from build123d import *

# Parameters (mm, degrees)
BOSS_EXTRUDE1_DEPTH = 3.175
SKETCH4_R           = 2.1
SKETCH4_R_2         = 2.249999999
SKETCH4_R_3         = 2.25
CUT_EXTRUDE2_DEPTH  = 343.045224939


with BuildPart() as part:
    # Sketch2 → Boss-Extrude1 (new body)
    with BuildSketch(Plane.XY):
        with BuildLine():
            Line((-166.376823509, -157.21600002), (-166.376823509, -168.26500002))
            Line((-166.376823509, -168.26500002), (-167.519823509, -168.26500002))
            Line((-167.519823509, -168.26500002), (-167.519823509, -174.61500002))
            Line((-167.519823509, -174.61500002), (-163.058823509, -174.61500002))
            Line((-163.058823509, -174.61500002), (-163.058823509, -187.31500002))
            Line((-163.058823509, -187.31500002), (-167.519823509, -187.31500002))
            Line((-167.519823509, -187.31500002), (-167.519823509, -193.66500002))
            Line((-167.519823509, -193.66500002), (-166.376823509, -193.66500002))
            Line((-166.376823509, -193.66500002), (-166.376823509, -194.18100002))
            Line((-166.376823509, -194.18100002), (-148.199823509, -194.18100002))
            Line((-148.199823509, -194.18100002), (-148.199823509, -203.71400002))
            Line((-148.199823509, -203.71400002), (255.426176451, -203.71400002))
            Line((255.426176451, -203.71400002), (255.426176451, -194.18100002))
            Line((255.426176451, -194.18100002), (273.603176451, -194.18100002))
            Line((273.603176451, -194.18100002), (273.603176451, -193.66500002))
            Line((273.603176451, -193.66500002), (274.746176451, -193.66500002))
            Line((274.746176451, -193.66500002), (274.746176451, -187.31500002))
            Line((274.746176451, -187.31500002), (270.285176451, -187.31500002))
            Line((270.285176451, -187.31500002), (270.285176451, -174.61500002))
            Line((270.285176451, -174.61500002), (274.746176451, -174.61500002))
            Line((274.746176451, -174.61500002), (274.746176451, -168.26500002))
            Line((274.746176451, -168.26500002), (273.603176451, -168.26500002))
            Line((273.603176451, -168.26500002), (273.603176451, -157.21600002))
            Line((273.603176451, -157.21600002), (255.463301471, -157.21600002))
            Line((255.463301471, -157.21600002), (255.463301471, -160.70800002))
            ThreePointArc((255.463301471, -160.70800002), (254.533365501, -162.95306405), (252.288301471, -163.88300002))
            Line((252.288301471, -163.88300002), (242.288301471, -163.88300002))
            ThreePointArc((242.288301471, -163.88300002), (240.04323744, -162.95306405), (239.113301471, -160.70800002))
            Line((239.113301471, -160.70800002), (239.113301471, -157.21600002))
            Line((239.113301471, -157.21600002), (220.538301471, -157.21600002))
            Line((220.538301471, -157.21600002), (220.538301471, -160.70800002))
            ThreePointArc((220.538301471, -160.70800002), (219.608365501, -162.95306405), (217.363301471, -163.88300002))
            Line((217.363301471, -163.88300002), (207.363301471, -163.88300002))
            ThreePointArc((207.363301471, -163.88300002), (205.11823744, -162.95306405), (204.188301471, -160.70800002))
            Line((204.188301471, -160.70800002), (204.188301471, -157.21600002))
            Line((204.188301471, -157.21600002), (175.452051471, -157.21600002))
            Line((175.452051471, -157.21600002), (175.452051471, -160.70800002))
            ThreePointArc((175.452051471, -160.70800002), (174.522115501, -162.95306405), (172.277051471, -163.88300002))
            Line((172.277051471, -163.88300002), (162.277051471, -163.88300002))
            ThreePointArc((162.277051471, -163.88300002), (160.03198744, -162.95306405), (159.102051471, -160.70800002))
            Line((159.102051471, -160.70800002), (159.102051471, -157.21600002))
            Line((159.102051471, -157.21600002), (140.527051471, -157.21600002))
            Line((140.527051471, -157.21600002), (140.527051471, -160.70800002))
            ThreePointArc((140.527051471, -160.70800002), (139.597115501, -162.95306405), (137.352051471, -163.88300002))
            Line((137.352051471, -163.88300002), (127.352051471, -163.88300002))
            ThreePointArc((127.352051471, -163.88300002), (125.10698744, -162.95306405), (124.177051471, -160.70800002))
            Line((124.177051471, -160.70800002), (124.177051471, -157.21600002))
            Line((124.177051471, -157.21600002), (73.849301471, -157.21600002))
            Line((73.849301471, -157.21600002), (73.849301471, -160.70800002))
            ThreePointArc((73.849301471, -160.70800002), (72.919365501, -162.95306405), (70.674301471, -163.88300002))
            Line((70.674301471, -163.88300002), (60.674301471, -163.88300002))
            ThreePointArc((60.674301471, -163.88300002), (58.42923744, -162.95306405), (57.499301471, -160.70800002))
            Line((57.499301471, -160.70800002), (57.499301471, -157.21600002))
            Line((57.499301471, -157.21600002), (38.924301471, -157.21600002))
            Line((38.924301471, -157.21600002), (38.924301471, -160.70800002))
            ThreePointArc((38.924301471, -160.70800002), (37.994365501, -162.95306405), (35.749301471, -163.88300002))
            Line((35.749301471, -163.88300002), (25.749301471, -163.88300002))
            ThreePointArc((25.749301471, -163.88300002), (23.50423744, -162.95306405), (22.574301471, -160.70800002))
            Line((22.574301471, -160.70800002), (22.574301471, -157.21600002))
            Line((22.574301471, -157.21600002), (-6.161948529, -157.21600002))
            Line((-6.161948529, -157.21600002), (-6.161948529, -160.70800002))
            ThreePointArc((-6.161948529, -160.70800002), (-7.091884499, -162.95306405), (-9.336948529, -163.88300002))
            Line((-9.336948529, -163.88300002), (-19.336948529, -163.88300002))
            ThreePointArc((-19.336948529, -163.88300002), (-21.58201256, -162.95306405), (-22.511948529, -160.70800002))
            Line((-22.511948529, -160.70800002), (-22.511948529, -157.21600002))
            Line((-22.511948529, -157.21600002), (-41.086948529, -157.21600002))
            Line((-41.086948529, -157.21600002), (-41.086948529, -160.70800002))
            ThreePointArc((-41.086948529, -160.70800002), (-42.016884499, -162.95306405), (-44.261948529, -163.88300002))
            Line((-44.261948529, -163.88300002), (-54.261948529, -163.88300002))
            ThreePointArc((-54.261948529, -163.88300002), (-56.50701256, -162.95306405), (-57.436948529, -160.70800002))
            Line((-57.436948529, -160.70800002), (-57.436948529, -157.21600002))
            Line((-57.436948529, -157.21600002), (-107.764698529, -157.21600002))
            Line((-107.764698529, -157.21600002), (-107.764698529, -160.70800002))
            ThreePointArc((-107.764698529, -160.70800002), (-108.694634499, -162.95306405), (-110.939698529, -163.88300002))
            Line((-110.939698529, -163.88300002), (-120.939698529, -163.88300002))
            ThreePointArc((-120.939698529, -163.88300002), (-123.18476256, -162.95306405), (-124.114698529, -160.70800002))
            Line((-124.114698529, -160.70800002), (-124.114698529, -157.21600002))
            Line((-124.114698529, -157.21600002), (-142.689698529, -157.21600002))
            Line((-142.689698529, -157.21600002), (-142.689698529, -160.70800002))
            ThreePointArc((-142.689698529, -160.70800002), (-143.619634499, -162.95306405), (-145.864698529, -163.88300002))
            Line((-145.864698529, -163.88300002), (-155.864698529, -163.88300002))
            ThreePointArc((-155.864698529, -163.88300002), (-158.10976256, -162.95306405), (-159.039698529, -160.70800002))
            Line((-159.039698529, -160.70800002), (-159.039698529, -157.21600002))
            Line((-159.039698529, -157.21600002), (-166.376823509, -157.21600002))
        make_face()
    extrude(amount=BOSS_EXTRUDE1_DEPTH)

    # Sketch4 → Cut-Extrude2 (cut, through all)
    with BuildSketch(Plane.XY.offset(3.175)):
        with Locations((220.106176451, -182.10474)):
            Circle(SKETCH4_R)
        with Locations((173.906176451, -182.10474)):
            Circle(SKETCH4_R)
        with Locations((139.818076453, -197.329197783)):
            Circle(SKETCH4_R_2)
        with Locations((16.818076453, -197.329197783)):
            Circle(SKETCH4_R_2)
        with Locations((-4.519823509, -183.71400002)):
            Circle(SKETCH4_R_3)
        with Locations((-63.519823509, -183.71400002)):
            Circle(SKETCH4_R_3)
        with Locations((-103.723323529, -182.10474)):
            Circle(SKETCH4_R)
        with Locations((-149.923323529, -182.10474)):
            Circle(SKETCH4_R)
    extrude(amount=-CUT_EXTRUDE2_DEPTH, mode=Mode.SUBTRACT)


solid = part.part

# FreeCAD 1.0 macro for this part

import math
import FreeCAD as App
import Part
import Sketcher
Q = App.Units.Quantity

doc = App.newDocument("Part")
params = doc.addObject("Spreadsheet::Sheet", "Params")
for row, (alias, value) in enumerate([
    ("sketch1_height", "0.5 in"),
    ("sketch1_radius", "0.125 in"),
    ("sketch1_height2", "0.25 in"),
    ("sketch1_width", "0.045 in"),
    ("sketch1_height3", "0.435 in"),
    ("pad1_length", "0.125 in"),
], start=1):
    params.set(f"A{row}", alias)
    params.set(f"B{row}", "=" + value)
    params.setAlias(f"B{row}", alias)

body = doc.addObject("PartDesign::Body", "Body")

# Sketch on XY plane
sketch1 = body.newObject("Sketcher::SketchObject", "Sketch")
sketch1.AttachmentSupport = (doc.getObject("XY_Plane"), [""])
sketch1.MapMode = "FlatFace"
sketch1.addGeometry(Part.LineSegment(App.Vector(-166.376824, -157.216, 0), App.Vector(-166.376824, -168.265, 0)), False)
sketch1.addGeometry(Part.LineSegment(App.Vector(-166.376824, -168.265, 0), App.Vector(-167.519824, -168.265, 0)), False)
sketch1.addGeometry(Part.LineSegment(App.Vector(-167.519824, -168.265, 0), App.Vector(-167.519824, -174.615, 0)), False)
sketch1.addGeometry(Part.LineSegment(App.Vector(-167.519824, -174.615, 0), App.Vector(-163.058824, -174.615, 0)), False)
sketch1.addGeometry(Part.LineSegment(App.Vector(-163.058824, -174.615, 0), App.Vector(-163.058824, -187.315, 0)), False)
sketch1.addGeometry(Part.LineSegment(App.Vector(-163.058824, -187.315, 0), App.Vector(-167.519824, -187.315, 0)), False)
sketch1.addGeometry(Part.LineSegment(App.Vector(-167.519824, -187.315, 0), App.Vector(-167.519824, -193.665, 0)), False)
sketch1.addGeometry(Part.LineSegment(App.Vector(-167.519824, -193.665, 0), App.Vector(-166.376824, -193.665, 0)), False)
sketch1.addGeometry(Part.LineSegment(App.Vector(-166.376824, -193.665, 0), App.Vector(-166.376824, -194.181, 0)), False)
sketch1.addGeometry(Part.LineSegment(App.Vector(-166.376824, -194.181, 0), App.Vector(-148.199824, -194.181, 0)), False)
sketch1.addGeometry(Part.LineSegment(App.Vector(-148.199824, -194.181, 0), App.Vector(-148.199824, -203.714, 0)), False)
sketch1.addGeometry(Part.LineSegment(App.Vector(-148.199824, -203.714, 0), App.Vector(255.426176, -203.714, 0)), False)
sketch1.addGeometry(Part.LineSegment(App.Vector(255.426176, -203.714, 0), App.Vector(255.426176, -194.181, 0)), False)
sketch1.addGeometry(Part.LineSegment(App.Vector(255.426176, -194.181, 0), App.Vector(273.603176, -194.181, 0)), False)
sketch1.addGeometry(Part.LineSegment(App.Vector(273.603176, -194.181, 0), App.Vector(273.603176, -193.665, 0)), False)
sketch1.addGeometry(Part.LineSegment(App.Vector(273.603176, -193.665, 0), App.Vector(274.746176, -193.665, 0)), False)
sketch1.addGeometry(Part.LineSegment(App.Vector(274.746176, -193.665, 0), App.Vector(274.746176, -187.315, 0)), False)
sketch1.addGeometry(Part.LineSegment(App.Vector(274.746176, -187.315, 0), App.Vector(270.285176, -187.315, 0)), False)
sketch1.addGeometry(Part.LineSegment(App.Vector(270.285176, -187.315, 0), App.Vector(270.285176, -174.615, 0)), False)
sketch1.addGeometry(Part.LineSegment(App.Vector(270.285176, -174.615, 0), App.Vector(274.746176, -174.615, 0)), False)
sketch1.addGeometry(Part.LineSegment(App.Vector(274.746176, -174.615, 0), App.Vector(274.746176, -168.265, 0)), False)
sketch1.addGeometry(Part.LineSegment(App.Vector(274.746176, -168.265, 0), App.Vector(273.603176, -168.265, 0)), False)
sketch1.addGeometry(Part.LineSegment(App.Vector(273.603176, -168.265, 0), App.Vector(273.603176, -157.216, 0)), False)
sketch1.addGeometry(Part.LineSegment(App.Vector(273.603176, -157.216, 0), App.Vector(255.463301, -157.216, 0)), False)
sketch1.addGeometry(Part.LineSegment(App.Vector(255.463301, -157.216, 0), App.Vector(255.463301, -160.708, 0)), False)
sketch1.addGeometry(Part.ArcOfCircle(Part.Circle(App.Vector(252.288301, -160.708, 0), App.Vector(0, 0, 1), 3.175), math.radians(-90), math.radians(0)), False)
sketch1.addGeometry(Part.LineSegment(App.Vector(252.288301, -163.883, 0), App.Vector(242.288301, -163.883, 0)), False)
sketch1.addGeometry(Part.ArcOfCircle(Part.Circle(App.Vector(242.288301, -160.708, 0), App.Vector(0, 0, 1), 3.175), math.radians(180), math.radians(270)), False)
sketch1.addGeometry(Part.LineSegment(App.Vector(239.113301, -160.708, 0), App.Vector(239.113301, -157.216, 0)), False)
sketch1.addGeometry(Part.LineSegment(App.Vector(239.113301, -157.216, 0), App.Vector(220.538301, -157.216, 0)), False)
sketch1.addGeometry(Part.LineSegment(App.Vector(220.538301, -157.216, 0), App.Vector(220.538301, -160.708, 0)), False)
sketch1.addGeometry(Part.ArcOfCircle(Part.Circle(App.Vector(217.363301, -160.708, 0), App.Vector(0, 0, 1), 3.175), math.radians(-90), math.radians(0)), False)
sketch1.addGeometry(Part.LineSegment(App.Vector(217.363301, -163.883, 0), App.Vector(207.363301, -163.883, 0)), False)
sketch1.addGeometry(Part.ArcOfCircle(Part.Circle(App.Vector(207.363301, -160.708, 0), App.Vector(0, 0, 1), 3.175), math.radians(180), math.radians(270)), False)
sketch1.addGeometry(Part.LineSegment(App.Vector(204.188301, -160.708, 0), App.Vector(204.188301, -157.216, 0)), False)
sketch1.addGeometry(Part.LineSegment(App.Vector(204.188301, -157.216, 0), App.Vector(175.452051, -157.216, 0)), False)
sketch1.addGeometry(Part.LineSegment(App.Vector(175.452051, -157.216, 0), App.Vector(175.452051, -160.708, 0)), False)
sketch1.addGeometry(Part.ArcOfCircle(Part.Circle(App.Vector(172.277051, -160.708, 0), App.Vector(0, 0, 1), 3.175), math.radians(-90), math.radians(0)), False)
sketch1.addGeometry(Part.LineSegment(App.Vector(172.277051, -163.883, 0), App.Vector(162.277051, -163.883, 0)), False)
sketch1.addGeometry(Part.ArcOfCircle(Part.Circle(App.Vector(162.277051, -160.708, 0), App.Vector(0, 0, 1), 3.175), math.radians(180), math.radians(270)), False)
sketch1.addGeometry(Part.LineSegment(App.Vector(159.102051, -160.708, 0), App.Vector(159.102051, -157.216, 0)), False)
sketch1.addGeometry(Part.LineSegment(App.Vector(159.102051, -157.216, 0), App.Vector(140.527051, -157.216, 0)), False)
sketch1.addGeometry(Part.LineSegment(App.Vector(140.527051, -157.216, 0), App.Vector(140.527051, -160.708, 0)), False)
sketch1.addGeometry(Part.ArcOfCircle(Part.Circle(App.Vector(137.352051, -160.708, 0), App.Vector(0, 0, 1), 3.175), math.radians(-90), math.radians(0)), False)
sketch1.addGeometry(Part.LineSegment(App.Vector(137.352051, -163.883, 0), App.Vector(127.352051, -163.883, 0)), False)
sketch1.addGeometry(Part.ArcOfCircle(Part.Circle(App.Vector(127.352051, -160.708, 0), App.Vector(0, 0, 1), 3.175), math.radians(180), math.radians(270)), False)
sketch1.addGeometry(Part.LineSegment(App.Vector(124.177051, -160.708, 0), App.Vector(124.177051, -157.216, 0)), False)
sketch1.addGeometry(Part.LineSegment(App.Vector(124.177051, -157.216, 0), App.Vector(73.849301, -157.216, 0)), False)
sketch1.addGeometry(Part.LineSegment(App.Vector(73.849301, -157.216, 0), App.Vector(73.849301, -160.708, 0)), False)
sketch1.addGeometry(Part.ArcOfCircle(Part.Circle(App.Vector(70.674301, -160.708, 0), App.Vector(0, 0, 1), 3.175), math.radians(-90), math.radians(0)), False)
sketch1.addGeometry(Part.LineSegment(App.Vector(70.674301, -163.883, 0), App.Vector(60.674301, -163.883, 0)), False)
sketch1.addGeometry(Part.ArcOfCircle(Part.Circle(App.Vector(60.674301, -160.708, 0), App.Vector(0, 0, 1), 3.175), math.radians(180), math.radians(270)), False)
sketch1.addGeometry(Part.LineSegment(App.Vector(57.499301, -160.708, 0), App.Vector(57.499301, -157.216, 0)), False)
sketch1.addGeometry(Part.LineSegment(App.Vector(57.499301, -157.216, 0), App.Vector(38.924301, -157.216, 0)), False)
sketch1.addGeometry(Part.LineSegment(App.Vector(38.924301, -157.216, 0), App.Vector(38.924301, -160.708, 0)), False)
sketch1.addGeometry(Part.ArcOfCircle(Part.Circle(App.Vector(35.749301, -160.708, 0), App.Vector(0, 0, 1), 3.175), math.radians(-90), math.radians(0)), False)
sketch1.addGeometry(Part.LineSegment(App.Vector(35.749301, -163.883, 0), App.Vector(25.749301, -163.883, 0)), False)
sketch1.addGeometry(Part.ArcOfCircle(Part.Circle(App.Vector(25.749301, -160.708, 0), App.Vector(0, 0, 1), 3.175), math.radians(180), math.radians(270)), False)
sketch1.addGeometry(Part.LineSegment(App.Vector(22.574301, -160.708, 0), App.Vector(22.574301, -157.216, 0)), False)
sketch1.addGeometry(Part.LineSegment(App.Vector(22.574301, -157.216, 0), App.Vector(-6.161949, -157.216, 0)), False)
sketch1.addGeometry(Part.LineSegment(App.Vector(-6.161949, -157.216, 0), App.Vector(-6.161949, -160.708, 0)), False)
sketch1.addGeometry(Part.ArcOfCircle(Part.Circle(App.Vector(-9.336949, -160.708, 0), App.Vector(0, 0, 1), 3.175), math.radians(-90), math.radians(0)), False)
sketch1.addGeometry(Part.LineSegment(App.Vector(-9.336949, -163.883, 0), App.Vector(-19.336949, -163.883, 0)), False)
sketch1.addGeometry(Part.ArcOfCircle(Part.Circle(App.Vector(-19.336949, -160.708, 0), App.Vector(0, 0, 1), 3.175), math.radians(180), math.radians(270)), False)
sketch1.addGeometry(Part.LineSegment(App.Vector(-22.511949, -160.708, 0), App.Vector(-22.511949, -157.216, 0)), False)
sketch1.addGeometry(Part.LineSegment(App.Vector(-22.511949, -157.216, 0), App.Vector(-41.086949, -157.216, 0)), False)
sketch1.addGeometry(Part.LineSegment(App.Vector(-41.086949, -157.216, 0), App.Vector(-41.086949, -160.708, 0)), False)
sketch1.addGeometry(Part.ArcOfCircle(Part.Circle(App.Vector(-44.261949, -160.708, 0), App.Vector(0, 0, 1), 3.175), math.radians(-90), math.radians(0)), False)
sketch1.addGeometry(Part.LineSegment(App.Vector(-44.261949, -163.883, 0), App.Vector(-54.261949, -163.883, 0)), False)
sketch1.addGeometry(Part.ArcOfCircle(Part.Circle(App.Vector(-54.261949, -160.708, 0), App.Vector(0, 0, 1), 3.175), math.radians(180), math.radians(270)), False)
sketch1.addGeometry(Part.LineSegment(App.Vector(-57.436949, -160.708, 0), App.Vector(-57.436949, -157.216, 0)), False)
sketch1.addGeometry(Part.LineSegment(App.Vector(-57.436949, -157.216, 0), App.Vector(-107.764699, -157.216, 0)), False)
sketch1.addGeometry(Part.LineSegment(App.Vector(-107.764699, -157.216, 0), App.Vector(-107.764699, -160.708, 0)), False)
sketch1.addGeometry(Part.ArcOfCircle(Part.Circle(App.Vector(-110.939699, -160.708, 0), App.Vector(0, 0, 1), 3.175), math.radians(-90), math.radians(0)), False)
sketch1.addGeometry(Part.LineSegment(App.Vector(-110.939699, -163.883, 0), App.Vector(-120.939699, -163.883, 0)), False)
sketch1.addGeometry(Part.ArcOfCircle(Part.Circle(App.Vector(-120.939699, -160.708, 0), App.Vector(0, 0, 1), 3.175), math.radians(180), math.radians(270)), False)
sketch1.addGeometry(Part.LineSegment(App.Vector(-124.114699, -160.708, 0), App.Vector(-124.114699, -157.216, 0)), False)
sketch1.addGeometry(Part.LineSegment(App.Vector(-124.114699, -157.216, 0), App.Vector(-142.689699, -157.216, 0)), False)
sketch1.addGeometry(Part.LineSegment(App.Vector(-142.689699, -157.216, 0), App.Vector(-142.689699, -160.708, 0)), False)
sketch1.addGeometry(Part.ArcOfCircle(Part.Circle(App.Vector(-145.864699, -160.708, 0), App.Vector(0, 0, 1), 3.175), math.radians(-90), math.radians(0)), False)
sketch1.addGeometry(Part.LineSegment(App.Vector(-145.864699, -163.883, 0), App.Vector(-155.864699, -163.883, 0)), False)
sketch1.addGeometry(Part.ArcOfCircle(Part.Circle(App.Vector(-155.864699, -160.708, 0), App.Vector(0, 0, 1), 3.175), math.radians(180), math.radians(270)), False)
sketch1.addGeometry(Part.LineSegment(App.Vector(-159.039699, -160.708, 0), App.Vector(-159.039699, -157.216, 0)), False)
sketch1.addGeometry(Part.LineSegment(App.Vector(-159.039699, -157.216, 0), App.Vector(-166.376824, -157.216, 0)), False)
sketch1.addConstraint(Sketcher.Constraint("Coincident", 0, 2, 1, 1))
sketch1.addConstraint(Sketcher.Constraint("Coincident", 1, 2, 2, 1))
sketch1.addConstraint(Sketcher.Constraint("Coincident", 2, 2, 3, 1))
sketch1.addConstraint(Sketcher.Constraint("Coincident", 3, 2, 4, 1))
sketch1.addConstraint(Sketcher.Constraint("Coincident", 4, 2, 5, 1))
sketch1.addConstraint(Sketcher.Constraint("Coincident", 5, 2, 6, 1))
sketch1.addConstraint(Sketcher.Constraint("Coincident", 6, 2, 7, 1))
sketch1.addConstraint(Sketcher.Constraint("Coincident", 7, 2, 8, 1))
sketch1.addConstraint(Sketcher.Constraint("Coincident", 8, 2, 9, 1))
sketch1.addConstraint(Sketcher.Constraint("Coincident", 9, 2, 10, 1))
sketch1.addConstraint(Sketcher.Constraint("Coincident", 10, 2, 11, 1))
sketch1.addConstraint(Sketcher.Constraint("Coincident", 11, 2, 12, 1))
sketch1.addConstraint(Sketcher.Constraint("Coincident", 12, 2, 13, 1))
sketch1.addConstraint(Sketcher.Constraint("Coincident", 13, 2, 14, 1))
sketch1.addConstraint(Sketcher.Constraint("Coincident", 14, 2, 15, 1))
sketch1.addConstraint(Sketcher.Constraint("Coincident", 15, 2, 16, 1))
sketch1.addConstraint(Sketcher.Constraint("Coincident", 16, 2, 17, 1))
sketch1.addConstraint(Sketcher.Constraint("Coincident", 17, 2, 18, 1))
sketch1.addConstraint(Sketcher.Constraint("Coincident", 18, 2, 19, 1))
sketch1.addConstraint(Sketcher.Constraint("Coincident", 19, 2, 20, 1))
sketch1.addConstraint(Sketcher.Constraint("Coincident", 20, 2, 21, 1))
sketch1.addConstraint(Sketcher.Constraint("Coincident", 21, 2, 22, 1))
sketch1.addConstraint(Sketcher.Constraint("Coincident", 22, 2, 23, 1))
sketch1.addConstraint(Sketcher.Constraint("Coincident", 23, 2, 24, 1))
sketch1.addConstraint(Sketcher.Constraint("Tangent", 24, 2, 25, 2))
sketch1.addConstraint(Sketcher.Constraint("Tangent", 25, 1, 26, 1))
sketch1.addConstraint(Sketcher.Constraint("Tangent", 26, 2, 27, 2))
sketch1.addConstraint(Sketcher.Constraint("Tangent", 27, 1, 28, 1))
sketch1.addConstraint(Sketcher.Constraint("Coincident", 28, 2, 29, 1))
sketch1.addConstraint(Sketcher.Constraint("Coincident", 29, 2, 30, 1))
sketch1.addConstraint(Sketcher.Constraint("Tangent", 30, 2, 31, 2))
sketch1.addConstraint(Sketcher.Constraint("Tangent", 31, 1, 32, 1))
sketch1.addConstraint(Sketcher.Constraint("Tangent", 32, 2, 33, 2))
sketch1.addConstraint(Sketcher.Constraint("Tangent", 33, 1, 34, 1))
sketch1.addConstraint(Sketcher.Constraint("Coincident", 34, 2, 35, 1))
sketch1.addConstraint(Sketcher.Constraint("Coincident", 35, 2, 36, 1))
sketch1.addConstraint(Sketcher.Constraint("Tangent", 36, 2, 37, 2))
sketch1.addConstraint(Sketcher.Constraint("Tangent", 37, 1, 38, 1))
sketch1.addConstraint(Sketcher.Constraint("Tangent", 38, 2, 39, 2))
sketch1.addConstraint(Sketcher.Constraint("Tangent", 39, 1, 40, 1))
sketch1.addConstraint(Sketcher.Constraint("Coincident", 40, 2, 41, 1))
sketch1.addConstraint(Sketcher.Constraint("Coincident", 41, 2, 42, 1))
sketch1.addConstraint(Sketcher.Constraint("Tangent", 42, 2, 43, 2))
sketch1.addConstraint(Sketcher.Constraint("Tangent", 43, 1, 44, 1))
sketch1.addConstraint(Sketcher.Constraint("Tangent", 44, 2, 45, 2))
sketch1.addConstraint(Sketcher.Constraint("Tangent", 45, 1, 46, 1))
sketch1.addConstraint(Sketcher.Constraint("Coincident", 46, 2, 47, 1))
sketch1.addConstraint(Sketcher.Constraint("Coincident", 47, 2, 48, 1))
sketch1.addConstraint(Sketcher.Constraint("Tangent", 48, 2, 49, 2))
sketch1.addConstraint(Sketcher.Constraint("Tangent", 49, 1, 50, 1))
sketch1.addConstraint(Sketcher.Constraint("Tangent", 50, 2, 51, 2))
sketch1.addConstraint(Sketcher.Constraint("Tangent", 51, 1, 52, 1))
sketch1.addConstraint(Sketcher.Constraint("Coincident", 52, 2, 53, 1))
sketch1.addConstraint(Sketcher.Constraint("Coincident", 53, 2, 54, 1))
sketch1.addConstraint(Sketcher.Constraint("Tangent", 54, 2, 55, 2))
sketch1.addConstraint(Sketcher.Constraint("Tangent", 55, 1, 56, 1))
sketch1.addConstraint(Sketcher.Constraint("Tangent", 56, 2, 57, 2))
sketch1.addConstraint(Sketcher.Constraint("Tangent", 57, 1, 58, 1))
sketch1.addConstraint(Sketcher.Constraint("Coincident", 58, 2, 59, 1))
sketch1.addConstraint(Sketcher.Constraint("Coincident", 59, 2, 60, 1))
sketch1.addConstraint(Sketcher.Constraint("Tangent", 60, 2, 61, 2))
sketch1.addConstraint(Sketcher.Constraint("Tangent", 61, 1, 62, 1))
sketch1.addConstraint(Sketcher.Constraint("Tangent", 62, 2, 63, 2))
sketch1.addConstraint(Sketcher.Constraint("Tangent", 63, 1, 64, 1))
sketch1.addConstraint(Sketcher.Constraint("Coincident", 64, 2, 65, 1))
sketch1.addConstraint(Sketcher.Constraint("Coincident", 65, 2, 66, 1))
sketch1.addConstraint(Sketcher.Constraint("Tangent", 66, 2, 67, 2))
sketch1.addConstraint(Sketcher.Constraint("Tangent", 67, 1, 68, 1))
sketch1.addConstraint(Sketcher.Constraint("Tangent", 68, 2, 69, 2))
sketch1.addConstraint(Sketcher.Constraint("Tangent", 69, 1, 70, 1))
sketch1.addConstraint(Sketcher.Constraint("Coincident", 70, 2, 71, 1))
sketch1.addConstraint(Sketcher.Constraint("Coincident", 71, 2, 72, 1))
sketch1.addConstraint(Sketcher.Constraint("Tangent", 72, 2, 73, 2))
sketch1.addConstraint(Sketcher.Constraint("Tangent", 73, 1, 74, 1))
sketch1.addConstraint(Sketcher.Constraint("Tangent", 74, 2, 75, 2))
sketch1.addConstraint(Sketcher.Constraint("Tangent", 75, 1, 76, 1))
sketch1.addConstraint(Sketcher.Constraint("Coincident", 76, 2, 77, 1))
sketch1.addConstraint(Sketcher.Constraint("Coincident", 77, 2, 78, 1))
sketch1.addConstraint(Sketcher.Constraint("Tangent", 78, 2, 79, 2))
sketch1.addConstraint(Sketcher.Constraint("Tangent", 79, 1, 80, 1))
sketch1.addConstraint(Sketcher.Constraint("Tangent", 80, 2, 81, 2))
sketch1.addConstraint(Sketcher.Constraint("Tangent", 81, 1, 82, 1))
sketch1.addConstraint(Sketcher.Constraint("Coincident", 82, 2, 83, 1))
sketch1.addConstraint(Sketcher.Constraint("Coincident", 83, 2, 0, 1))
sketch1.addConstraint(Sketcher.Constraint("Vertical", 0))
sketch1.addConstraint(Sketcher.Constraint("Horizontal", 1))
sketch1.addConstraint(Sketcher.Constraint("Vertical", 2))
sketch1.addConstraint(Sketcher.Constraint("Horizontal", 3))
sketch1.addConstraint(Sketcher.Constraint("Vertical", 4))
sketch1.addConstraint(Sketcher.Constraint("Horizontal", 5))
sketch1.addConstraint(Sketcher.Constraint("Vertical", 6))
sketch1.addConstraint(Sketcher.Constraint("Horizontal", 7))
sketch1.addConstraint(Sketcher.Constraint("Vertical", 8))
sketch1.addConstraint(Sketcher.Constraint("Horizontal", 9))
sketch1.addConstraint(Sketcher.Constraint("Vertical", 10))
sketch1.addConstraint(Sketcher.Constraint("Horizontal", 11))
sketch1.addConstraint(Sketcher.Constraint("Vertical", 12))
sketch1.addConstraint(Sketcher.Constraint("Horizontal", 13))
sketch1.addConstraint(Sketcher.Constraint("Vertical", 14))
sketch1.addConstraint(Sketcher.Constraint("Horizontal", 15))
sketch1.addConstraint(Sketcher.Constraint("Vertical", 16))
sketch1.addConstraint(Sketcher.Constraint("Horizontal", 17))
sketch1.addConstraint(Sketcher.Constraint("Vertical", 18))
sketch1.addConstraint(Sketcher.Constraint("Horizontal", 19))
sketch1.addConstraint(Sketcher.Constraint("Vertical", 20))
sketch1.addConstraint(Sketcher.Constraint("Horizontal", 21))
sketch1.addConstraint(Sketcher.Constraint("Vertical", 22))
sketch1.addConstraint(Sketcher.Constraint("Horizontal", 23))
sketch1.addConstraint(Sketcher.Constraint("Vertical", 24))
sketch1.addConstraint(Sketcher.Constraint("Horizontal", 26))
sketch1.addConstraint(Sketcher.Constraint("Vertical", 28))
sketch1.addConstraint(Sketcher.Constraint("Horizontal", 29))
sketch1.addConstraint(Sketcher.Constraint("Vertical", 30))
sketch1.addConstraint(Sketcher.Constraint("Horizontal", 32))
sketch1.addConstraint(Sketcher.Constraint("Vertical", 34))
sketch1.addConstraint(Sketcher.Constraint("Horizontal", 35))
sketch1.addConstraint(Sketcher.Constraint("Vertical", 36))
sketch1.addConstraint(Sketcher.Constraint("Horizontal", 38))
sketch1.addConstraint(Sketcher.Constraint("Vertical", 40))
sketch1.addConstraint(Sketcher.Constraint("Horizontal", 41))
sketch1.addConstraint(Sketcher.Constraint("Vertical", 42))
sketch1.addConstraint(Sketcher.Constraint("Horizontal", 44))
sketch1.addConstraint(Sketcher.Constraint("Vertical", 46))
sketch1.addConstraint(Sketcher.Constraint("Horizontal", 47))
sketch1.addConstraint(Sketcher.Constraint("Vertical", 48))
sketch1.addConstraint(Sketcher.Constraint("Horizontal", 50))
sketch1.addConstraint(Sketcher.Constraint("Vertical", 52))
sketch1.addConstraint(Sketcher.Constraint("Horizontal", 53))
sketch1.addConstraint(Sketcher.Constraint("Vertical", 54))
sketch1.addConstraint(Sketcher.Constraint("Horizontal", 56))
sketch1.addConstraint(Sketcher.Constraint("Vertical", 58))
sketch1.addConstraint(Sketcher.Constraint("Horizontal", 59))
sketch1.addConstraint(Sketcher.Constraint("Vertical", 60))
sketch1.addConstraint(Sketcher.Constraint("Horizontal", 62))
sketch1.addConstraint(Sketcher.Constraint("Vertical", 64))
sketch1.addConstraint(Sketcher.Constraint("Horizontal", 65))
sketch1.addConstraint(Sketcher.Constraint("Vertical", 66))
sketch1.addConstraint(Sketcher.Constraint("Horizontal", 68))
sketch1.addConstraint(Sketcher.Constraint("Vertical", 70))
sketch1.addConstraint(Sketcher.Constraint("Horizontal", 71))
sketch1.addConstraint(Sketcher.Constraint("Vertical", 72))
sketch1.addConstraint(Sketcher.Constraint("Horizontal", 74))
sketch1.addConstraint(Sketcher.Constraint("Vertical", 76))
sketch1.addConstraint(Sketcher.Constraint("Horizontal", 77))
sketch1.addConstraint(Sketcher.Constraint("Vertical", 78))
sketch1.addConstraint(Sketcher.Constraint("Horizontal", 80))
sketch1.addConstraint(Sketcher.Constraint("Vertical", 82))
sketch1.addConstraint(Sketcher.Constraint("Horizontal", 83))
sketch1.addConstraint(Sketcher.Constraint("Equal", 25, 27))
sketch1.addConstraint(Sketcher.Constraint("Equal", 27, 31))
sketch1.addConstraint(Sketcher.Constraint("Equal", 31, 33))
sketch1.addConstraint(Sketcher.Constraint("Equal", 33, 37))
sketch1.addConstraint(Sketcher.Constraint("Equal", 37, 39))
sketch1.addConstraint(Sketcher.Constraint("Equal", 39, 43))
sketch1.addConstraint(Sketcher.Constraint("Equal", 43, 45))
sketch1.addConstraint(Sketcher.Constraint("Equal", 45, 49))
sketch1.addConstraint(Sketcher.Constraint("Equal", 49, 51))
sketch1.addConstraint(Sketcher.Constraint("Equal", 51, 55))
sketch1.addConstraint(Sketcher.Constraint("Equal", 55, 57))
sketch1.addConstraint(Sketcher.Constraint("Equal", 57, 61))
sketch1.addConstraint(Sketcher.Constraint("Equal", 61, 63))
sketch1.addConstraint(Sketcher.Constraint("Equal", 63, 67))
sketch1.addConstraint(Sketcher.Constraint("Equal", 67, 69))
sketch1.addConstraint(Sketcher.Constraint("Equal", 69, 73))
sketch1.addConstraint(Sketcher.Constraint("Equal", 73, 75))
sketch1.addConstraint(Sketcher.Constraint("Equal", 75, 79))
sketch1.addConstraint(Sketcher.Constraint("Equal", 79, 81))
sketch1.addConstraint(Sketcher.Constraint("Horizontal", 27, 3, 31, 3))
sketch1.addConstraint(Sketcher.Constraint("Horizontal", 33, 3, 37, 3))
sketch1.addConstraint(Sketcher.Constraint("Horizontal", 39, 3, 43, 3))
sketch1.addConstraint(Sketcher.Constraint("Horizontal", 45, 3, 49, 3))
sketch1.addConstraint(Sketcher.Constraint("Horizontal", 51, 3, 55, 3))
sketch1.addConstraint(Sketcher.Constraint("Horizontal", 57, 3, 61, 3))
sketch1.addConstraint(Sketcher.Constraint("Horizontal", 63, 3, 67, 3))
sketch1.addConstraint(Sketcher.Constraint("Horizontal", 69, 3, 73, 3))
sketch1.addConstraint(Sketcher.Constraint("Horizontal", 75, 3, 79, 3))
sketch1.addConstraint(Sketcher.Constraint("Horizontal", 9, 2, 12, 2))
sketch1.addConstraint(Sketcher.Constraint("Horizontal", 7, 2, 14, 2))
sketch1.addConstraint(Sketcher.Constraint("Horizontal", 5, 2, 16, 2))
sketch1.addConstraint(Sketcher.Constraint("Horizontal", 3, 2, 18, 2))
sketch1.addConstraint(Sketcher.Constraint("Horizontal", 1, 2, 20, 2))
sketch1.addConstraint(Sketcher.Constraint("Horizontal", 23, 2, 28, 2))
sketch1.addConstraint(Sketcher.Constraint("Horizontal", 29, 2, 34, 2))
sketch1.addConstraint(Sketcher.Constraint("Horizontal", 35, 2, 40, 2))
sketch1.addConstraint(Sketcher.Constraint("Horizontal", 41, 2, 46, 2))
sketch1.addConstraint(Sketcher.Constraint("Horizontal", 47, 2, 52, 2))
sketch1.addConstraint(Sketcher.Constraint("Horizontal", 53, 2, 58, 2))
sketch1.addConstraint(Sketcher.Constraint("Horizontal", 59, 2, 64, 2))
sketch1.addConstraint(Sketcher.Constraint("Horizontal", 65, 2, 70, 2))
sketch1.addConstraint(Sketcher.Constraint("Horizontal", 71, 2, 76, 2))
sketch1.addConstraint(Sketcher.Constraint("Horizontal", 77, 2, 82, 2))
sketch1.addConstraint(Sketcher.Constraint("Vertical", 2, 2, 5, 2))
sketch1.addConstraint(Sketcher.Constraint("Vertical", 0, 2, 7, 2))
sketch1.addConstraint(Sketcher.Constraint("Vertical", 16, 2, 19, 2))
sketch1.addConstraint(Sketcher.Constraint("Vertical", 14, 2, 21, 2))
sketch1.addConstraint(Sketcher.Constraint("Equal", 9, 13))
sketch1.addConstraint(Sketcher.Constraint("Equal", 7, 15))
sketch1.addConstraint(Sketcher.Constraint("Equal", 5, 17))
sketch1.addConstraint(Sketcher.Constraint("Equal", 26, 32))
sketch1.addConstraint(Sketcher.Constraint("Equal", 32, 38))
sketch1.addConstraint(Sketcher.Constraint("Equal", 29, 41))
sketch1.addConstraint(Sketcher.Constraint("Equal", 38, 44))
sketch1.addConstraint(Sketcher.Constraint("Equal", 44, 50))
sketch1.addConstraint(Sketcher.Constraint("Equal", 41, 53))
sketch1.addConstraint(Sketcher.Constraint("Equal", 50, 56))
sketch1.addConstraint(Sketcher.Constraint("Equal", 35, 59))
sketch1.addConstraint(Sketcher.Constraint("Equal", 56, 62))
sketch1.addConstraint(Sketcher.Constraint("Equal", 53, 65))
sketch1.addConstraint(Sketcher.Constraint("Equal", 62, 68))
sketch1.addConstraint(Sketcher.Constraint("Equal", 47, 71))
sketch1.addConstraint(Sketcher.Constraint("Equal", 68, 74))
sketch1.addConstraint(Sketcher.Constraint("Equal", 65, 77))
sketch1.addConstraint(Sketcher.Constraint("Equal", 74, 80))
sketch1.addConstraint(Sketcher.Constraint("Equal", 2, 6))
sketch1.addConstraint(Sketcher.Constraint("DistanceY", 4, 2, 4, 1, Q("0.5 in")))
sketch1.addConstraint(Sketcher.Constraint("Radius", 25, Q("0.125 in")))
sketch1.addConstraint(Sketcher.Constraint("DistanceY", 2, 2, 2, 1, Q("0.25 in")))
sketch1.addConstraint(Sketcher.Constraint("DistanceX", 1, 2, 1, 1, Q("0.045 in")))
sketch1.addConstraint(Sketcher.Constraint("DistanceY", 0, 2, 0, 1, Q("0.435 in")))
sketch1.addConstraint(Sketcher.Constraint("DistanceX", 3, 1, 3, 2, 4.461))
sketch1.addConstraint(Sketcher.Constraint("DistanceX", 9, 1, 9, 2, 18.177))
sketch1.addConstraint(Sketcher.Constraint("DistanceX", 11, 1, 11, 2, 403.626))
sketch1.addConstraint(Sketcher.Constraint("DistanceX", 26, 2, 26, 1, 10.0))
sketch1.addConstraint(Sketcher.Constraint("DistanceX", 29, 2, 29, 1, 18.575))
sketch1.addConstraint(Sketcher.Constraint("DistanceY", 8, 2, 8, 1, 0.516))
sketch1.addConstraint(Sketcher.Constraint("DistanceY", 10, 2, 10, 1, 9.533))
sketch1.addConstraint(Sketcher.Constraint("DistanceY", 24, 2, 24, 1, 3.492))
sketch1.addConstraint(Sketcher.Constraint("DistanceX", 35, 2, 35, 1, 28.73625))
sketch1.addConstraint(Sketcher.Constraint("DistanceX", 47, 2, 47, 1, 50.32775))
sketch1.addConstraint(Sketcher.Constraint("DistanceX", -1, 1, 25, 3, 252.288301))
sketch1.addConstraint(Sketcher.Constraint("DistanceY", 25, 3, -1, 1, 160.708))
sketch1.addConstraint(Sketcher.Constraint("DistanceX", 23, 2, 23, 1, 18.139875))
sketch1.setExpression("Constraints[214]", "Params.sketch1_height")
sketch1.setExpression("Constraints[215]", "Params.sketch1_radius")
sketch1.setExpression("Constraints[216]", "Params.sketch1_height2")
sketch1.setExpression("Constraints[217]", "Params.sketch1_width")
sketch1.setExpression("Constraints[218]", "Params.sketch1_height3")
pad1 = body.newObject("PartDesign::Pad", "Pad")
pad1.Profile = sketch1
pad1.setExpression("Length", "Params.pad1_length")

# Sketch on XY plane
sketch2 = body.newObject("Sketcher::SketchObject", "Sketch001")
sketch2.AttachmentSupport = (doc.getObject("XY_Plane"), [""])
sketch2.MapMode = "FlatFace"
sketch2.AttachmentOffset = App.Placement(App.Vector(0, 0, 0.125 * 25.4), App.Rotation())
sketch2.addGeometry(Part.Circle(App.Vector(220.106176, -182.10474, 0), App.Vector(0, 0, 1), 2.1), False)
sketch2.addGeometry(Part.Circle(App.Vector(173.906176, -182.10474, 0), App.Vector(0, 0, 1), 2.1), False)
sketch2.addGeometry(Part.Circle(App.Vector(139.818076, -197.329198, 0), App.Vector(0, 0, 1), 2.25), False)
sketch2.addGeometry(Part.Circle(App.Vector(16.818076, -197.329198, 0), App.Vector(0, 0, 1), 2.25), False)
sketch2.addGeometry(Part.Circle(App.Vector(-4.519824, -183.714, 0), App.Vector(0, 0, 1), 2.25), False)
sketch2.addGeometry(Part.Circle(App.Vector(-63.519824, -183.714, 0), App.Vector(0, 0, 1), 2.25), False)
sketch2.addGeometry(Part.Circle(App.Vector(-103.723324, -182.10474, 0), App.Vector(0, 0, 1), 2.1), False)
sketch2.addGeometry(Part.Circle(App.Vector(-149.923324, -182.10474, 0), App.Vector(0, 0, 1), 2.1), False)
sketch2.addConstraint(Sketcher.Constraint("Equal", 0, 1))
sketch2.addConstraint(Sketcher.Constraint("Equal", 2, 3))
sketch2.addConstraint(Sketcher.Constraint("Equal", 3, 4))
sketch2.addConstraint(Sketcher.Constraint("Equal", 4, 5))
sketch2.addConstraint(Sketcher.Constraint("Equal", 1, 6))
sketch2.addConstraint(Sketcher.Constraint("Equal", 6, 7))
sketch2.addConstraint(Sketcher.Constraint("Horizontal", 0, 3, 1, 3))
sketch2.addConstraint(Sketcher.Constraint("Horizontal", 2, 3, 3, 3))
sketch2.addConstraint(Sketcher.Constraint("Horizontal", 4, 3, 5, 3))
sketch2.addConstraint(Sketcher.Constraint("Horizontal", 1, 3, 6, 3))
sketch2.addConstraint(Sketcher.Constraint("Horizontal", 6, 3, 7, 3))
sketch2.addConstraint(Sketcher.Constraint("Diameter", 0, 4.2))
sketch2.addConstraint(Sketcher.Constraint("Diameter", 2, 4.5))
sketch2.addConstraint(Sketcher.Constraint("DistanceX", -1, 1, 1, 3, Q("6.8466999 in")))
sketch2.addConstraint(Sketcher.Constraint("DistanceY", 4, 3, -1, 1, 183.714))
sketch2.addConstraint(Sketcher.Constraint("DistanceX", 1, 3, 0, 3, 46.2))
sketch2.addConstraint(Sketcher.Constraint("DistanceX", 2, 3, 1, 3, 34.0881))
sketch2.addConstraint(Sketcher.Constraint("DistanceX", 3, 3, 2, 3, 123.0))
sketch2.addConstraint(Sketcher.Constraint("DistanceX", 4, 3, 3, 3, 21.3379))
sketch2.addConstraint(Sketcher.Constraint("DistanceX", 5, 3, 4, 3, 59.0))
sketch2.addConstraint(Sketcher.Constraint("DistanceX", 6, 3, 5, 3, 40.2035))
sketch2.addConstraint(Sketcher.Constraint("DistanceX", 7, 3, 6, 3, 46.2))
sketch2.addConstraint(Sketcher.Constraint("DistanceY", 0, 3, -1, 1, 182.10474))
sketch2.addConstraint(Sketcher.Constraint("DistanceY", 2, 3, -1, 1, 197.329198))
pocket1 = body.newObject("PartDesign::Pocket", "Pocket")
pocket1.Profile = sketch2
pocket1.Type = "ThroughAll"

doc.recompute()
